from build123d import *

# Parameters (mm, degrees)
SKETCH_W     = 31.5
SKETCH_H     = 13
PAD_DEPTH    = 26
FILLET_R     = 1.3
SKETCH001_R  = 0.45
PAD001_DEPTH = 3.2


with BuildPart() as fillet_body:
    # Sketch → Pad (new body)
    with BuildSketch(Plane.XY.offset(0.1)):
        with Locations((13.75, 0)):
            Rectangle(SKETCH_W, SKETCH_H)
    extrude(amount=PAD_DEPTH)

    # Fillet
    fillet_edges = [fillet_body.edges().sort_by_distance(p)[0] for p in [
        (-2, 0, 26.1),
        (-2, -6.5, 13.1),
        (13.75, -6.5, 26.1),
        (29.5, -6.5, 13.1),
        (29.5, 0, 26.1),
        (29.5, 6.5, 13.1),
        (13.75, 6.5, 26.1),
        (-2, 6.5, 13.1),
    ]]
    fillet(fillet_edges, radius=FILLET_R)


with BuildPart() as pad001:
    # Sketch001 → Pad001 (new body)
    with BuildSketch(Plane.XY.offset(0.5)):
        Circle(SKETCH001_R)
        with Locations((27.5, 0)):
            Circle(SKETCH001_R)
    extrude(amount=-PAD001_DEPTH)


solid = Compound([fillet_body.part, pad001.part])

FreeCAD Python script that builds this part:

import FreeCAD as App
import Part
import Sketcher
from FreeCAD import Vector
Q = App.Units.Quantity


def edges_at(feature, points):
    """Names of the edges that pass closest to the given points."""
    edges = feature.Shape.Edges
    near = lambda p: min(range(len(edges)), key=lambda i: edges[i].distToShape(Part.Vertex(*p))[0])
    return sorted({f"Edge{near(p) + 1}" for p in points})

doc = App.newDocument("Part")
body = doc.addObject("PartDesign::Body", "Body")

# Sketch on XY plane
sketch1 = body.newObject("Sketcher::SketchObject", "Sketch")
sketch1.AttachmentSupport = (doc.getObject("XY_Plane"), [""])
sketch1.MapMode = "FlatFace"
sketch1.AttachmentOffset = App.Placement(Vector(0, 0, 0.1), App.Rotation())
sketch1.addGeometry([
    Part.LineSegment(Vector(-2, 6, 0), Vector(-2, -6, 0)),
    Part.LineSegment(Vector(-2, -6, 0), Vector(30, -6, 0)),
    Part.LineSegment(Vector(30, -6, 0), Vector(30, 6, 0)),
    Part.LineSegment(Vector(30, 6, 0), Vector(-2, 6, 0)),
], False)
sketch1.addConstraint([
    Sketcher.Constraint("Coincident", 0, 2, 1, 1),
    Sketcher.Constraint("Coincident", 1, 2, 2, 1),
    Sketcher.Constraint("Coincident", 2, 2, 3, 1),
    Sketcher.Constraint("Coincident", 3, 2, 0, 1),
    Sketcher.Constraint("Vertical", 0),
    Sketcher.Constraint("Horizontal", 1),
    Sketcher.Constraint("Vertical", 2),
    Sketcher.Constraint("Horizontal", 3),
    Sketcher.Constraint("DistanceY", 0, 2, 0, 1, Q("13 mm")),
    Sketcher.Constraint("DistanceX", 1, 1, 1, 2, Q("31.5 mm")),
    Sketcher.Constraint("DistanceX", 0, 2, -1, 1, Q("2 mm")),
    Sketcher.Constraint("DistanceY", 0, 2, -1, 1, Q("6.5 mm")),
])
pad1 = body.newObject("PartDesign::Pad", "Pad")
pad1.Profile = sketch1
pad1.Length = 26
doc.recompute()

fillet = body.newObject("PartDesign::Fillet", "Fillet")
fillet.Base = (pad1, edges_at(pad1, [
    (-2, 0, 26.1),
    (-2, -6.5, 13.1),
    (13.75, -6.5, 26.1),
    (29.5, -6.5, 13.1),
    (29.5, 0, 26.1),
    (29.5, 6.5, 13.1),
    (13.75, 6.5, 26.1),
    (-2, 6.5, 13.1),
]))
fillet.Radius = 1.3
body2 = doc.addObject("PartDesign::Body", "Body001")
body2.AllowCompound = True

# Sketch on XY plane
sketch2 = body2.newObject("Sketcher::SketchObject", "Sketch001")
sketch2.AttachmentSupport = (doc.getObject("XY_Plane001"), [""])
sketch2.MapMode = "FlatFace"
sketch2.AttachmentOffset = App.Placement(Vector(0, 0, 0.5), App.Rotation())
sketch2.addGeometry([
    Part.Circle(Vector(0, 0, 0), Vector(0, 0, 1), 0.45),
    Part.Circle(Vector(27.5, 0, 0), Vector(0, 0, 1), 0.45),
], False)
sketch2.addConstraint([
    Sketcher.Constraint("Coincident", 0, 3, -1, 1),
    Sketcher.Constraint("Equal", 0, 1),
    Sketcher.Constraint("PointOnObject", 1, 3, -1),
    Sketcher.Constraint("Diameter", 0, Q("0.9 mm")),
    Sketcher.Constraint("DistanceX", -1, 1, 1, 3, Q("27.5 mm")),
])
pad2 = body2.newObject("PartDesign::Pad", "Pad001")
pad2.Profile = sketch2
pad2.Length = 3.2
pad2.Reversed = True

doc.recompute()
